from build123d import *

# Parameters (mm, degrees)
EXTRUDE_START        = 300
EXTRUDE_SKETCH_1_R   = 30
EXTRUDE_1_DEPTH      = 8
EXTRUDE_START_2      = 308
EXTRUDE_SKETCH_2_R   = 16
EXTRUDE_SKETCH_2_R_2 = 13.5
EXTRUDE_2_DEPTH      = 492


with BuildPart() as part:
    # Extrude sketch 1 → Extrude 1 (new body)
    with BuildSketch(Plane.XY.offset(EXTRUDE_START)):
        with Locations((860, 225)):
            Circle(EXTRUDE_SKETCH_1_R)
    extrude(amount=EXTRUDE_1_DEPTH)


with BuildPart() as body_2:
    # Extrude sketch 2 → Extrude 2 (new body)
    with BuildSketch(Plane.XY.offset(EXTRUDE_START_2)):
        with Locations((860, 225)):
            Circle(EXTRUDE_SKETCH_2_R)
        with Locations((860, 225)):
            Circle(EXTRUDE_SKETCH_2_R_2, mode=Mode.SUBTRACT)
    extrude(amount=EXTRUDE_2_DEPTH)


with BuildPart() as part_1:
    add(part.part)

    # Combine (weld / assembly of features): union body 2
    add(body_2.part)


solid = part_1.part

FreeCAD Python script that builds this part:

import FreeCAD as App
import Part
import Sketcher

V = App.Vector
Q = App.Units.Quantity

doc = App.newDocument("Part")
params = doc.addObject("Spreadsheet::Sheet", "Params")
for row, (alias, value) in enumerate([
    ("sketch1_diameter", "60 mm"),
    ("pad1_length", "8 mm"),
    ("sketch2_diameter", "32 mm"),
    ("sketch2_diameter2", "27 mm"),
    ("pad2_length", "492 mm"),
], start=1):
    params.set(f"A{row}", alias)
    params.set(f"B{row}", "=" + value)
    params.setAlias(f"B{row}", alias)

body = doc.addObject("PartDesign::Body", "Body")

# Sketch on XY plane
sketch1 = body.newObject("Sketcher::SketchObject", "Sketch")
sketch1.AttachmentSupport = (doc.getObject("XY_Plane"), [""])
sketch1.MapMode = "FlatFace"
sketch1.AttachmentOffset = App.Placement(V(0, 0, 300), App.Rotation())
sketch1.addGeometry(Part.Circle(V(860, 225, 0), V(0, 0, 1), 30), False)
sketch1.addConstraint(Sketcher.Constraint("Diameter", 0, Q("60 mm")))
sketch1.addConstraint(Sketcher.Constraint("DistanceX", -1, 1, 0, 3, Q("860 mm")))
sketch1.addConstraint(Sketcher.Constraint("DistanceY", -1, 1, 0, 3, Q("225 mm")))
sketch1.setExpression("Constraints[0]", "Params.sketch1_diameter")
pad1 = body.newObject("PartDesign::Pad", "Pad")
pad1.Profile = sketch1
pad1.setExpression("Length", "Params.pad1_length")
body2 = doc.addObject("PartDesign::Body", "Body001")

# Sketch on XY plane
sketch2 = body2.newObject("Sketcher::SketchObject", "Sketch001")
sketch2.AttachmentSupport = (doc.getObject("XY_Plane001"), [""])
sketch2.MapMode = "FlatFace"
sketch2.AttachmentOffset = App.Placement(V(0, 0, 308), App.Rotation())
sketch2.addGeometry(Part.Circle(V(860, 225, 0), V(0, 0, 1), 16), False)
sketch2.addGeometry(Part.Circle(V(860, 225, 0), V(0, 0, 1), 13.5), False)
sketch2.addConstraint(Sketcher.Constraint("Coincident", 1, 3, 0, 3))
sketch2.addConstraint(Sketcher.Constraint("Diameter", 0, Q("32 mm")))
sketch2.addConstraint(Sketcher.Constraint("Diameter", 1, Q("27 mm")))
sketch2.addConstraint(Sketcher.Constraint("DistanceX", -1, 1, 0, 3, Q("860 mm")))
sketch2.addConstraint(Sketcher.Constraint("DistanceY", -1, 1, 0, 3, Q("225 mm")))
sketch2.setExpression("Constraints[1]", "Params.sketch2_diameter")
sketch2.setExpression("Constraints[2]", "Params.sketch2_diameter2")
pad2 = body2.newObject("PartDesign::Pad", "Pad001")
pad2.Profile = sketch2
pad2.setExpression("Length", "Params.pad2_length")
doc.recompute()

boolean = body.newObject("PartDesign::Boolean", "Boolean")
boolean.Type = "Fuse"
boolean.addObjects([body2])

doc.recompute()
